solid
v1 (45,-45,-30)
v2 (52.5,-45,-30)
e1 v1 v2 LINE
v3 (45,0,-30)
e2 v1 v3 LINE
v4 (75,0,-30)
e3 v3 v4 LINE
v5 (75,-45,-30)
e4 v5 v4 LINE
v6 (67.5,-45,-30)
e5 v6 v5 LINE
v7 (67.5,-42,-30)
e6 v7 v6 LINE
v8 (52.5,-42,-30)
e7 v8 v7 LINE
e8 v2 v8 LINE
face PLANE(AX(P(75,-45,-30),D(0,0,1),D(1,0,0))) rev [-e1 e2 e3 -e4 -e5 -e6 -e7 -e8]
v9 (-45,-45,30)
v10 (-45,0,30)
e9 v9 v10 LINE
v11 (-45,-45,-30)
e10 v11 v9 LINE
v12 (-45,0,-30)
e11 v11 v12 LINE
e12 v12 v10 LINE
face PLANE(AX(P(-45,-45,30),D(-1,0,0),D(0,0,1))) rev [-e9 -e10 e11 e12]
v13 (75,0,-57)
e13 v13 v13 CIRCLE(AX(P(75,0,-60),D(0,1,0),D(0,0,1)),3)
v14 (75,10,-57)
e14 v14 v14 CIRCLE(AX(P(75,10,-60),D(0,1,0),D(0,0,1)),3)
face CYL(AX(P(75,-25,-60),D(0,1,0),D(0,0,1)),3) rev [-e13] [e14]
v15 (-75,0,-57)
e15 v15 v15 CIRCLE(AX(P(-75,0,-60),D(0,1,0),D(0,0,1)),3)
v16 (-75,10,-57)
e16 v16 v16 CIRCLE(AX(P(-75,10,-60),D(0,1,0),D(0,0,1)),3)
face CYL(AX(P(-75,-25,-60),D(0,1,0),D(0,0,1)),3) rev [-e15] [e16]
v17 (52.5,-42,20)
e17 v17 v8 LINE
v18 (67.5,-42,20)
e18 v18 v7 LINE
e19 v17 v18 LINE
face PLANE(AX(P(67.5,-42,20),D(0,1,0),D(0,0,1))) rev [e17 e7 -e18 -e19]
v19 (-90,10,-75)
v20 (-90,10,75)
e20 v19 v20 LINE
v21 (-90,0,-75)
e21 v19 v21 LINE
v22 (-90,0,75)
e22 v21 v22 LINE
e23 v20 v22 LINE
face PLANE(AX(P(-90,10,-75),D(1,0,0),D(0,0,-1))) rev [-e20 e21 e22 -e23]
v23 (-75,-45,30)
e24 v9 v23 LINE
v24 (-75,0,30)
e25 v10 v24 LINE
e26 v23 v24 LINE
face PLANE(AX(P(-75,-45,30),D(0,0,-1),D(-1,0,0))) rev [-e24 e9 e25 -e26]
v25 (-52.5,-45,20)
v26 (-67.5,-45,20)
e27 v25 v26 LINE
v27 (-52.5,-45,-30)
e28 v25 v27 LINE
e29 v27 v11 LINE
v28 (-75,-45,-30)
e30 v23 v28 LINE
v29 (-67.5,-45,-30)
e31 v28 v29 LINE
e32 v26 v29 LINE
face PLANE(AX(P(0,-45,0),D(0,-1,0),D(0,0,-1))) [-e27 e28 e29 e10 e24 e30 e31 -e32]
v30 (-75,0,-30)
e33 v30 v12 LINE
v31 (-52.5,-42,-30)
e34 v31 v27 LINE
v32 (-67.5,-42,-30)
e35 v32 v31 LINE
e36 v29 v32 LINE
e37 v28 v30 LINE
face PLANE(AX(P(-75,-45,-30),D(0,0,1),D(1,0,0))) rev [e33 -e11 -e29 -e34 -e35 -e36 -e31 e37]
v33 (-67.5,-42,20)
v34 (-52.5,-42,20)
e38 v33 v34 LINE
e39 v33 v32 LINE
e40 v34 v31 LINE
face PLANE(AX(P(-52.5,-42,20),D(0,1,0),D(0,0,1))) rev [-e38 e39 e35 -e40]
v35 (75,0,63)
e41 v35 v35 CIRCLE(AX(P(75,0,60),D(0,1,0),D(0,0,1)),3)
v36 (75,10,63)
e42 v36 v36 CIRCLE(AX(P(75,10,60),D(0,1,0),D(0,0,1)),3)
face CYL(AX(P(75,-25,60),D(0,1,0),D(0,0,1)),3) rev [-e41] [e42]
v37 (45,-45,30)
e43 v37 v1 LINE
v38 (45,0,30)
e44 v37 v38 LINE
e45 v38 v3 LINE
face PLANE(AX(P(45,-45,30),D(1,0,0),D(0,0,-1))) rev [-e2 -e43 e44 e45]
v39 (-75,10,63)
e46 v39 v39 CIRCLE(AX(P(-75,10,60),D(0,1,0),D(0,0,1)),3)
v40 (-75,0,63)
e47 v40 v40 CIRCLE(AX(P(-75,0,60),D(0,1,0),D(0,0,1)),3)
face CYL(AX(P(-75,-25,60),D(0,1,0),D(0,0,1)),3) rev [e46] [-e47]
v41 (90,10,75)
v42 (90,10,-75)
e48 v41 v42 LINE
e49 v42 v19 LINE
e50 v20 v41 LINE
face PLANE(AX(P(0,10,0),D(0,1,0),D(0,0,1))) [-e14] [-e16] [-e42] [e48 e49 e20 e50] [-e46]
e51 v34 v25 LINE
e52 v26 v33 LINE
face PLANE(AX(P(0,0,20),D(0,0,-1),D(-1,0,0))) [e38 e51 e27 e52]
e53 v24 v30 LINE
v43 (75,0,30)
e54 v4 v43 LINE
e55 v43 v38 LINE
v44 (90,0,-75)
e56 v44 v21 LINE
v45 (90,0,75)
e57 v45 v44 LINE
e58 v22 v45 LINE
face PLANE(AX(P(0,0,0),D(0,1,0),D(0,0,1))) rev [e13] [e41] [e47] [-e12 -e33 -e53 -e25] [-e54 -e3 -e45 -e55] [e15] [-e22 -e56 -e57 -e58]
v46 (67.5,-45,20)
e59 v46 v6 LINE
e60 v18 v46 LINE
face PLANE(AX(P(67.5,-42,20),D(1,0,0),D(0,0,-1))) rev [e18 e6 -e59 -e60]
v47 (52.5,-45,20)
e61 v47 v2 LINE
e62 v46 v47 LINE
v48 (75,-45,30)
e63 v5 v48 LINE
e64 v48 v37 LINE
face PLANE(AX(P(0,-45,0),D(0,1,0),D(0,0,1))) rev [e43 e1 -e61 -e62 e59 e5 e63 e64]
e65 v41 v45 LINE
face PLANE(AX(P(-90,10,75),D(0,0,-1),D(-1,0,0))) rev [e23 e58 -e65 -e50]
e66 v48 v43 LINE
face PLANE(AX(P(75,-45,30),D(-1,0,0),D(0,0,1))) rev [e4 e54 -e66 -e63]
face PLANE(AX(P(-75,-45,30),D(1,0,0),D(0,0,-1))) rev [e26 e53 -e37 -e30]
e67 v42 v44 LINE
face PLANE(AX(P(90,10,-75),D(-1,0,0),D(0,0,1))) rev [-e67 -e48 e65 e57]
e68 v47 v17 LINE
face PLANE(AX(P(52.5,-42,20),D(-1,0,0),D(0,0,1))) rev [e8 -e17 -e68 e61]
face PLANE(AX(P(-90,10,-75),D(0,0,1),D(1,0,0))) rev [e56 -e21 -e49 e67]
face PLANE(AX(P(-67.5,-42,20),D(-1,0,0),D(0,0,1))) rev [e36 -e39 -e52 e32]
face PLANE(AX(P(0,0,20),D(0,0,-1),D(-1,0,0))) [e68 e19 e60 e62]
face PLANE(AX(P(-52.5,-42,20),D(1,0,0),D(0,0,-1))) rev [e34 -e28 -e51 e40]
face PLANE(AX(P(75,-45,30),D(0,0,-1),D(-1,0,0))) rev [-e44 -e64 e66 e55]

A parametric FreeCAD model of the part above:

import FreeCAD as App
import Part
import Sketcher
Q = App.Units.Quantity


def add_polygon(sketch, points):
    """Adds a closed chain of lines whose ends are joined by coincident constraints."""
    first, n = sketch.GeometryCount, len(points)
    for a, b in zip(points, points[1:] + points[:1]):
        sketch.addGeometry(Part.LineSegment(App.Vector(*a, 0), App.Vector(*b, 0)), False)
    for i in range(n):
        sketch.addConstraint(Sketcher.Constraint("Coincident", first + i, 2, first + (i + 1) % n, 1))

doc = App.newDocument("Part")
params = doc.addObject("Spreadsheet::Sheet", "Params")
for row, (alias, value) in enumerate([
    ("sketch1_width", "180 mm"),
    ("sketch1_height", "150 mm"),
    ("pad1_length", "10 mm"),
    ("sketch2_diameter", "6 mm"),
    ("pocket1_length", "35 mm"),
    ("sketch3_width", "30 mm"),
    ("sketch3_height", "60 mm"),
    ("pad2_length", "45 mm"),
    ("sketch4_width", "15 mm"),
    ("sketch4_height", "3 mm"),
    ("pocket2_length", "50 mm"),
    ("sketch5_width", "15 mm"),
    ("sketch5_height", "3 mm"),
    ("pocket3_length", "50 mm"),
], start=1):
    params.set(f"A{row}", alias)
    params.set(f"B{row}", "=" + value)
    params.setAlias(f"B{row}", alias)

body = doc.addObject("PartDesign::Body", "Body")

sketch1 = doc.addObject("Sketcher::SketchObject", "Sketch")
body.addObject(sketch1)
sketch1.AttachmentSupport = (doc.XZ_Plane, [""])
sketch1.MapMode = "FlatFace"
add_polygon(sketch1, [(-90, -75), (-90, 75), (90, 75), (90, -75)])
sketch1.addConstraint([
    Sketcher.Constraint("Vertical", 0),
    Sketcher.Constraint("Horizontal", 1),
    Sketcher.Constraint("Vertical", 2),
    Sketcher.Constraint("Horizontal", 3),
    Sketcher.Constraint("Symmetric", 0, 2, 2, 2, -1, 1),
    Sketcher.Constraint("DistanceX", 1, 1, 1, 2, Q("180 mm")),
    Sketcher.Constraint("DistanceY", 0, 1, 0, 2, Q("150 mm")),
])
sketch1.setExpression("Constraints[9]", "Params.sketch1_width")
sketch1.setExpression("Constraints[10]", "Params.sketch1_height")
pad1 = doc.addObject("PartDesign::Pad", "Pad")
body.addObject(pad1)
pad1.Profile = sketch1
pad1.setExpression("Length", "Params.pad1_length")
pad1.Reversed = True

sketch2 = doc.addObject("Sketcher::SketchObject", "Sketch001")
body.addObject(sketch2)
sketch2.AttachmentSupport = (doc.XZ_Plane, [""])
sketch2.MapMode = "FlatFace"
sketch2.AttachmentOffset = App.Placement(App.Vector(0, 0, -10), App.Rotation())
sketch2.addGeometry([
    Part.Circle(App.Vector(-75, -60, 0), App.Vector(0, 0, 1), 3),
    Part.Circle(App.Vector(-75, 60, 0), App.Vector(0, 0, 1), 3),
    Part.Circle(App.Vector(75, 60, 0), App.Vector(0, 0, 1), 3),
    Part.Circle(App.Vector(75, -60, 0), App.Vector(0, 0, 1), 3),
], False)
sketch2.addConstraint([
    Sketcher.Constraint("Equal", 0, 1),
    Sketcher.Constraint("Equal", 1, 2),
    Sketcher.Constraint("Equal", 2, 3),
    Sketcher.Constraint("Symmetric", 0, 3, 2, 3, -1, 1),
    Sketcher.Constraint("Symmetric", 1, 3, 3, 3, -1, 1),
    Sketcher.Constraint("Symmetric", 1, 3, 2, 3, -2),
    Sketcher.Constraint("Diameter", 0, Q("6 mm")),
    Sketcher.Constraint("DistanceX", 0, 3, -1, 1, Q("75 mm")),
    Sketcher.Constraint("DistanceY", 0, 3, -1, 1, Q("60 mm")),
])
sketch2.setExpression("Constraints[6]", "Params.sketch2_diameter")
pocket1 = doc.addObject("PartDesign::Pocket", "Pocket")
body.addObject(pocket1)
pocket1.Profile = sketch2
pocket1.setExpression("Length", "Params.pocket1_length")
pocket1.Reversed = True

sketch3 = doc.addObject("Sketcher::SketchObject", "Sketch002")
body.addObject(sketch3)
sketch3.AttachmentSupport = (doc.XZ_Plane, [""])
sketch3.MapMode = "FlatFace"
add_polygon(sketch3, [(-75, 30), (-75, -30), (-45, -30), (-45, 30)])
add_polygon(sketch3, [(45, 30), (45, -30), (75, -30), (75, 30)])
sketch3.addConstraint([
    Sketcher.Constraint("Vertical", 0),
    Sketcher.Constraint("Horizontal", 1),
    Sketcher.Constraint("Vertical", 2),
    Sketcher.Constraint("Horizontal", 3),
    Sketcher.Constraint("Vertical", 4),
    Sketcher.Constraint("Horizontal", 5),
    Sketcher.Constraint("Vertical", 6),
    Sketcher.Constraint("Horizontal", 7),
    Sketcher.Constraint("Symmetric", 2, 2, 4, 2, -1, 1),
    Sketcher.Constraint("Symmetric", 0, 2, 6, 2, -1, 1),
    Sketcher.Constraint("Horizontal", 1, 2, 4, 2),
    Sketcher.Constraint("DistanceX", 1, 1, 1, 2, Q("30 mm")),
    Sketcher.Constraint("DistanceY", 0, 2, 0, 1, Q("60 mm")),
    Sketcher.Constraint("DistanceX", 0, 2, -1, 1, Q("75 mm")),
])
sketch3.setExpression("Constraints[19]", "Params.sketch3_width")
sketch3.setExpression("Constraints[20]", "Params.sketch3_height")
pad2 = doc.addObject("PartDesign::Pad", "Pad001")
body.addObject(pad2)
pad2.Profile = sketch3
pad2.setExpression("Length", "Params.pad2_length")

sketch4 = doc.addObject("Sketcher::SketchObject", "Sketch003")
body.addObject(sketch4)
sketch4.AttachmentSupport = (doc.XY_Plane, [""])
sketch4.MapMode = "FlatFace"
sketch4.AttachmentOffset = App.Placement(App.Vector(0, 0, -30), App.Rotation())
add_polygon(sketch4, [(-52.5, -42), (-52.5, -45), (-67.5, -45), (-67.5, -42)])
sketch4.addConstraint([
    Sketcher.Constraint("Vertical", 0),
    Sketcher.Constraint("Horizontal", 1),
    Sketcher.Constraint("Vertical", 2),
    Sketcher.Constraint("Horizontal", 3),
    Sketcher.Constraint("DistanceX", 1, 2, 1, 1, Q("15 mm")),
    Sketcher.Constraint("DistanceY", 0, 2, 0, 1, Q("3 mm")),
    Sketcher.Constraint("DistanceY", 0, 2, -1, 1, Q("45 mm")),
    Sketcher.Constraint("DistanceX", 0, 2, -1, 1, Q("52.5 mm")),
])
sketch4.setExpression("Constraints[8]", "Params.sketch4_width")
sketch4.setExpression("Constraints[9]", "Params.sketch4_height")
pocket2 = doc.addObject("PartDesign::Pocket", "Pocket001")
body.addObject(pocket2)
pocket2.Profile = sketch4
pocket2.setExpression("Length", "Params.pocket2_length")
pocket2.Reversed = True

sketch5 = doc.addObject("Sketcher::SketchObject", "Sketch004")
body.addObject(sketch5)
sketch5.AttachmentSupport = (doc.XY_Plane, [""])
sketch5.MapMode = "FlatFace"
sketch5.AttachmentOffset = App.Placement(App.Vector(0, 0, -30), App.Rotation())
add_polygon(sketch5, [(67.5, -42), (67.5, -45), (52.5, -45), (52.5, -42)])
sketch5.addConstraint([
    Sketcher.Constraint("Vertical", 0),
    Sketcher.Constraint("Horizontal", 1),
    Sketcher.Constraint("Vertical", 2),
    Sketcher.Constraint("Horizontal", 3),
    Sketcher.Constraint("DistanceX", 1, 2, 1, 1, Q("15 mm")),
    Sketcher.Constraint("DistanceY", 0, 2, 0, 1, Q("3 mm")),
    Sketcher.Constraint("DistanceY", 0, 2, -1, 1, Q("45 mm")),
    Sketcher.Constraint("DistanceX", -1, 1, 0, 2, Q("67.5 mm")),
])
sketch5.setExpression("Constraints[8]", "Params.sketch5_width")
sketch5.setExpression("Constraints[9]", "Params.sketch5_height")
pocket3 = doc.addObject("PartDesign::Pocket", "Pocket002")
body.addObject(pocket3)
pocket3.Profile = sketch5
pocket3.setExpression("Length", "Params.pocket3_length")
pocket3.Reversed = True

doc.recompute()
